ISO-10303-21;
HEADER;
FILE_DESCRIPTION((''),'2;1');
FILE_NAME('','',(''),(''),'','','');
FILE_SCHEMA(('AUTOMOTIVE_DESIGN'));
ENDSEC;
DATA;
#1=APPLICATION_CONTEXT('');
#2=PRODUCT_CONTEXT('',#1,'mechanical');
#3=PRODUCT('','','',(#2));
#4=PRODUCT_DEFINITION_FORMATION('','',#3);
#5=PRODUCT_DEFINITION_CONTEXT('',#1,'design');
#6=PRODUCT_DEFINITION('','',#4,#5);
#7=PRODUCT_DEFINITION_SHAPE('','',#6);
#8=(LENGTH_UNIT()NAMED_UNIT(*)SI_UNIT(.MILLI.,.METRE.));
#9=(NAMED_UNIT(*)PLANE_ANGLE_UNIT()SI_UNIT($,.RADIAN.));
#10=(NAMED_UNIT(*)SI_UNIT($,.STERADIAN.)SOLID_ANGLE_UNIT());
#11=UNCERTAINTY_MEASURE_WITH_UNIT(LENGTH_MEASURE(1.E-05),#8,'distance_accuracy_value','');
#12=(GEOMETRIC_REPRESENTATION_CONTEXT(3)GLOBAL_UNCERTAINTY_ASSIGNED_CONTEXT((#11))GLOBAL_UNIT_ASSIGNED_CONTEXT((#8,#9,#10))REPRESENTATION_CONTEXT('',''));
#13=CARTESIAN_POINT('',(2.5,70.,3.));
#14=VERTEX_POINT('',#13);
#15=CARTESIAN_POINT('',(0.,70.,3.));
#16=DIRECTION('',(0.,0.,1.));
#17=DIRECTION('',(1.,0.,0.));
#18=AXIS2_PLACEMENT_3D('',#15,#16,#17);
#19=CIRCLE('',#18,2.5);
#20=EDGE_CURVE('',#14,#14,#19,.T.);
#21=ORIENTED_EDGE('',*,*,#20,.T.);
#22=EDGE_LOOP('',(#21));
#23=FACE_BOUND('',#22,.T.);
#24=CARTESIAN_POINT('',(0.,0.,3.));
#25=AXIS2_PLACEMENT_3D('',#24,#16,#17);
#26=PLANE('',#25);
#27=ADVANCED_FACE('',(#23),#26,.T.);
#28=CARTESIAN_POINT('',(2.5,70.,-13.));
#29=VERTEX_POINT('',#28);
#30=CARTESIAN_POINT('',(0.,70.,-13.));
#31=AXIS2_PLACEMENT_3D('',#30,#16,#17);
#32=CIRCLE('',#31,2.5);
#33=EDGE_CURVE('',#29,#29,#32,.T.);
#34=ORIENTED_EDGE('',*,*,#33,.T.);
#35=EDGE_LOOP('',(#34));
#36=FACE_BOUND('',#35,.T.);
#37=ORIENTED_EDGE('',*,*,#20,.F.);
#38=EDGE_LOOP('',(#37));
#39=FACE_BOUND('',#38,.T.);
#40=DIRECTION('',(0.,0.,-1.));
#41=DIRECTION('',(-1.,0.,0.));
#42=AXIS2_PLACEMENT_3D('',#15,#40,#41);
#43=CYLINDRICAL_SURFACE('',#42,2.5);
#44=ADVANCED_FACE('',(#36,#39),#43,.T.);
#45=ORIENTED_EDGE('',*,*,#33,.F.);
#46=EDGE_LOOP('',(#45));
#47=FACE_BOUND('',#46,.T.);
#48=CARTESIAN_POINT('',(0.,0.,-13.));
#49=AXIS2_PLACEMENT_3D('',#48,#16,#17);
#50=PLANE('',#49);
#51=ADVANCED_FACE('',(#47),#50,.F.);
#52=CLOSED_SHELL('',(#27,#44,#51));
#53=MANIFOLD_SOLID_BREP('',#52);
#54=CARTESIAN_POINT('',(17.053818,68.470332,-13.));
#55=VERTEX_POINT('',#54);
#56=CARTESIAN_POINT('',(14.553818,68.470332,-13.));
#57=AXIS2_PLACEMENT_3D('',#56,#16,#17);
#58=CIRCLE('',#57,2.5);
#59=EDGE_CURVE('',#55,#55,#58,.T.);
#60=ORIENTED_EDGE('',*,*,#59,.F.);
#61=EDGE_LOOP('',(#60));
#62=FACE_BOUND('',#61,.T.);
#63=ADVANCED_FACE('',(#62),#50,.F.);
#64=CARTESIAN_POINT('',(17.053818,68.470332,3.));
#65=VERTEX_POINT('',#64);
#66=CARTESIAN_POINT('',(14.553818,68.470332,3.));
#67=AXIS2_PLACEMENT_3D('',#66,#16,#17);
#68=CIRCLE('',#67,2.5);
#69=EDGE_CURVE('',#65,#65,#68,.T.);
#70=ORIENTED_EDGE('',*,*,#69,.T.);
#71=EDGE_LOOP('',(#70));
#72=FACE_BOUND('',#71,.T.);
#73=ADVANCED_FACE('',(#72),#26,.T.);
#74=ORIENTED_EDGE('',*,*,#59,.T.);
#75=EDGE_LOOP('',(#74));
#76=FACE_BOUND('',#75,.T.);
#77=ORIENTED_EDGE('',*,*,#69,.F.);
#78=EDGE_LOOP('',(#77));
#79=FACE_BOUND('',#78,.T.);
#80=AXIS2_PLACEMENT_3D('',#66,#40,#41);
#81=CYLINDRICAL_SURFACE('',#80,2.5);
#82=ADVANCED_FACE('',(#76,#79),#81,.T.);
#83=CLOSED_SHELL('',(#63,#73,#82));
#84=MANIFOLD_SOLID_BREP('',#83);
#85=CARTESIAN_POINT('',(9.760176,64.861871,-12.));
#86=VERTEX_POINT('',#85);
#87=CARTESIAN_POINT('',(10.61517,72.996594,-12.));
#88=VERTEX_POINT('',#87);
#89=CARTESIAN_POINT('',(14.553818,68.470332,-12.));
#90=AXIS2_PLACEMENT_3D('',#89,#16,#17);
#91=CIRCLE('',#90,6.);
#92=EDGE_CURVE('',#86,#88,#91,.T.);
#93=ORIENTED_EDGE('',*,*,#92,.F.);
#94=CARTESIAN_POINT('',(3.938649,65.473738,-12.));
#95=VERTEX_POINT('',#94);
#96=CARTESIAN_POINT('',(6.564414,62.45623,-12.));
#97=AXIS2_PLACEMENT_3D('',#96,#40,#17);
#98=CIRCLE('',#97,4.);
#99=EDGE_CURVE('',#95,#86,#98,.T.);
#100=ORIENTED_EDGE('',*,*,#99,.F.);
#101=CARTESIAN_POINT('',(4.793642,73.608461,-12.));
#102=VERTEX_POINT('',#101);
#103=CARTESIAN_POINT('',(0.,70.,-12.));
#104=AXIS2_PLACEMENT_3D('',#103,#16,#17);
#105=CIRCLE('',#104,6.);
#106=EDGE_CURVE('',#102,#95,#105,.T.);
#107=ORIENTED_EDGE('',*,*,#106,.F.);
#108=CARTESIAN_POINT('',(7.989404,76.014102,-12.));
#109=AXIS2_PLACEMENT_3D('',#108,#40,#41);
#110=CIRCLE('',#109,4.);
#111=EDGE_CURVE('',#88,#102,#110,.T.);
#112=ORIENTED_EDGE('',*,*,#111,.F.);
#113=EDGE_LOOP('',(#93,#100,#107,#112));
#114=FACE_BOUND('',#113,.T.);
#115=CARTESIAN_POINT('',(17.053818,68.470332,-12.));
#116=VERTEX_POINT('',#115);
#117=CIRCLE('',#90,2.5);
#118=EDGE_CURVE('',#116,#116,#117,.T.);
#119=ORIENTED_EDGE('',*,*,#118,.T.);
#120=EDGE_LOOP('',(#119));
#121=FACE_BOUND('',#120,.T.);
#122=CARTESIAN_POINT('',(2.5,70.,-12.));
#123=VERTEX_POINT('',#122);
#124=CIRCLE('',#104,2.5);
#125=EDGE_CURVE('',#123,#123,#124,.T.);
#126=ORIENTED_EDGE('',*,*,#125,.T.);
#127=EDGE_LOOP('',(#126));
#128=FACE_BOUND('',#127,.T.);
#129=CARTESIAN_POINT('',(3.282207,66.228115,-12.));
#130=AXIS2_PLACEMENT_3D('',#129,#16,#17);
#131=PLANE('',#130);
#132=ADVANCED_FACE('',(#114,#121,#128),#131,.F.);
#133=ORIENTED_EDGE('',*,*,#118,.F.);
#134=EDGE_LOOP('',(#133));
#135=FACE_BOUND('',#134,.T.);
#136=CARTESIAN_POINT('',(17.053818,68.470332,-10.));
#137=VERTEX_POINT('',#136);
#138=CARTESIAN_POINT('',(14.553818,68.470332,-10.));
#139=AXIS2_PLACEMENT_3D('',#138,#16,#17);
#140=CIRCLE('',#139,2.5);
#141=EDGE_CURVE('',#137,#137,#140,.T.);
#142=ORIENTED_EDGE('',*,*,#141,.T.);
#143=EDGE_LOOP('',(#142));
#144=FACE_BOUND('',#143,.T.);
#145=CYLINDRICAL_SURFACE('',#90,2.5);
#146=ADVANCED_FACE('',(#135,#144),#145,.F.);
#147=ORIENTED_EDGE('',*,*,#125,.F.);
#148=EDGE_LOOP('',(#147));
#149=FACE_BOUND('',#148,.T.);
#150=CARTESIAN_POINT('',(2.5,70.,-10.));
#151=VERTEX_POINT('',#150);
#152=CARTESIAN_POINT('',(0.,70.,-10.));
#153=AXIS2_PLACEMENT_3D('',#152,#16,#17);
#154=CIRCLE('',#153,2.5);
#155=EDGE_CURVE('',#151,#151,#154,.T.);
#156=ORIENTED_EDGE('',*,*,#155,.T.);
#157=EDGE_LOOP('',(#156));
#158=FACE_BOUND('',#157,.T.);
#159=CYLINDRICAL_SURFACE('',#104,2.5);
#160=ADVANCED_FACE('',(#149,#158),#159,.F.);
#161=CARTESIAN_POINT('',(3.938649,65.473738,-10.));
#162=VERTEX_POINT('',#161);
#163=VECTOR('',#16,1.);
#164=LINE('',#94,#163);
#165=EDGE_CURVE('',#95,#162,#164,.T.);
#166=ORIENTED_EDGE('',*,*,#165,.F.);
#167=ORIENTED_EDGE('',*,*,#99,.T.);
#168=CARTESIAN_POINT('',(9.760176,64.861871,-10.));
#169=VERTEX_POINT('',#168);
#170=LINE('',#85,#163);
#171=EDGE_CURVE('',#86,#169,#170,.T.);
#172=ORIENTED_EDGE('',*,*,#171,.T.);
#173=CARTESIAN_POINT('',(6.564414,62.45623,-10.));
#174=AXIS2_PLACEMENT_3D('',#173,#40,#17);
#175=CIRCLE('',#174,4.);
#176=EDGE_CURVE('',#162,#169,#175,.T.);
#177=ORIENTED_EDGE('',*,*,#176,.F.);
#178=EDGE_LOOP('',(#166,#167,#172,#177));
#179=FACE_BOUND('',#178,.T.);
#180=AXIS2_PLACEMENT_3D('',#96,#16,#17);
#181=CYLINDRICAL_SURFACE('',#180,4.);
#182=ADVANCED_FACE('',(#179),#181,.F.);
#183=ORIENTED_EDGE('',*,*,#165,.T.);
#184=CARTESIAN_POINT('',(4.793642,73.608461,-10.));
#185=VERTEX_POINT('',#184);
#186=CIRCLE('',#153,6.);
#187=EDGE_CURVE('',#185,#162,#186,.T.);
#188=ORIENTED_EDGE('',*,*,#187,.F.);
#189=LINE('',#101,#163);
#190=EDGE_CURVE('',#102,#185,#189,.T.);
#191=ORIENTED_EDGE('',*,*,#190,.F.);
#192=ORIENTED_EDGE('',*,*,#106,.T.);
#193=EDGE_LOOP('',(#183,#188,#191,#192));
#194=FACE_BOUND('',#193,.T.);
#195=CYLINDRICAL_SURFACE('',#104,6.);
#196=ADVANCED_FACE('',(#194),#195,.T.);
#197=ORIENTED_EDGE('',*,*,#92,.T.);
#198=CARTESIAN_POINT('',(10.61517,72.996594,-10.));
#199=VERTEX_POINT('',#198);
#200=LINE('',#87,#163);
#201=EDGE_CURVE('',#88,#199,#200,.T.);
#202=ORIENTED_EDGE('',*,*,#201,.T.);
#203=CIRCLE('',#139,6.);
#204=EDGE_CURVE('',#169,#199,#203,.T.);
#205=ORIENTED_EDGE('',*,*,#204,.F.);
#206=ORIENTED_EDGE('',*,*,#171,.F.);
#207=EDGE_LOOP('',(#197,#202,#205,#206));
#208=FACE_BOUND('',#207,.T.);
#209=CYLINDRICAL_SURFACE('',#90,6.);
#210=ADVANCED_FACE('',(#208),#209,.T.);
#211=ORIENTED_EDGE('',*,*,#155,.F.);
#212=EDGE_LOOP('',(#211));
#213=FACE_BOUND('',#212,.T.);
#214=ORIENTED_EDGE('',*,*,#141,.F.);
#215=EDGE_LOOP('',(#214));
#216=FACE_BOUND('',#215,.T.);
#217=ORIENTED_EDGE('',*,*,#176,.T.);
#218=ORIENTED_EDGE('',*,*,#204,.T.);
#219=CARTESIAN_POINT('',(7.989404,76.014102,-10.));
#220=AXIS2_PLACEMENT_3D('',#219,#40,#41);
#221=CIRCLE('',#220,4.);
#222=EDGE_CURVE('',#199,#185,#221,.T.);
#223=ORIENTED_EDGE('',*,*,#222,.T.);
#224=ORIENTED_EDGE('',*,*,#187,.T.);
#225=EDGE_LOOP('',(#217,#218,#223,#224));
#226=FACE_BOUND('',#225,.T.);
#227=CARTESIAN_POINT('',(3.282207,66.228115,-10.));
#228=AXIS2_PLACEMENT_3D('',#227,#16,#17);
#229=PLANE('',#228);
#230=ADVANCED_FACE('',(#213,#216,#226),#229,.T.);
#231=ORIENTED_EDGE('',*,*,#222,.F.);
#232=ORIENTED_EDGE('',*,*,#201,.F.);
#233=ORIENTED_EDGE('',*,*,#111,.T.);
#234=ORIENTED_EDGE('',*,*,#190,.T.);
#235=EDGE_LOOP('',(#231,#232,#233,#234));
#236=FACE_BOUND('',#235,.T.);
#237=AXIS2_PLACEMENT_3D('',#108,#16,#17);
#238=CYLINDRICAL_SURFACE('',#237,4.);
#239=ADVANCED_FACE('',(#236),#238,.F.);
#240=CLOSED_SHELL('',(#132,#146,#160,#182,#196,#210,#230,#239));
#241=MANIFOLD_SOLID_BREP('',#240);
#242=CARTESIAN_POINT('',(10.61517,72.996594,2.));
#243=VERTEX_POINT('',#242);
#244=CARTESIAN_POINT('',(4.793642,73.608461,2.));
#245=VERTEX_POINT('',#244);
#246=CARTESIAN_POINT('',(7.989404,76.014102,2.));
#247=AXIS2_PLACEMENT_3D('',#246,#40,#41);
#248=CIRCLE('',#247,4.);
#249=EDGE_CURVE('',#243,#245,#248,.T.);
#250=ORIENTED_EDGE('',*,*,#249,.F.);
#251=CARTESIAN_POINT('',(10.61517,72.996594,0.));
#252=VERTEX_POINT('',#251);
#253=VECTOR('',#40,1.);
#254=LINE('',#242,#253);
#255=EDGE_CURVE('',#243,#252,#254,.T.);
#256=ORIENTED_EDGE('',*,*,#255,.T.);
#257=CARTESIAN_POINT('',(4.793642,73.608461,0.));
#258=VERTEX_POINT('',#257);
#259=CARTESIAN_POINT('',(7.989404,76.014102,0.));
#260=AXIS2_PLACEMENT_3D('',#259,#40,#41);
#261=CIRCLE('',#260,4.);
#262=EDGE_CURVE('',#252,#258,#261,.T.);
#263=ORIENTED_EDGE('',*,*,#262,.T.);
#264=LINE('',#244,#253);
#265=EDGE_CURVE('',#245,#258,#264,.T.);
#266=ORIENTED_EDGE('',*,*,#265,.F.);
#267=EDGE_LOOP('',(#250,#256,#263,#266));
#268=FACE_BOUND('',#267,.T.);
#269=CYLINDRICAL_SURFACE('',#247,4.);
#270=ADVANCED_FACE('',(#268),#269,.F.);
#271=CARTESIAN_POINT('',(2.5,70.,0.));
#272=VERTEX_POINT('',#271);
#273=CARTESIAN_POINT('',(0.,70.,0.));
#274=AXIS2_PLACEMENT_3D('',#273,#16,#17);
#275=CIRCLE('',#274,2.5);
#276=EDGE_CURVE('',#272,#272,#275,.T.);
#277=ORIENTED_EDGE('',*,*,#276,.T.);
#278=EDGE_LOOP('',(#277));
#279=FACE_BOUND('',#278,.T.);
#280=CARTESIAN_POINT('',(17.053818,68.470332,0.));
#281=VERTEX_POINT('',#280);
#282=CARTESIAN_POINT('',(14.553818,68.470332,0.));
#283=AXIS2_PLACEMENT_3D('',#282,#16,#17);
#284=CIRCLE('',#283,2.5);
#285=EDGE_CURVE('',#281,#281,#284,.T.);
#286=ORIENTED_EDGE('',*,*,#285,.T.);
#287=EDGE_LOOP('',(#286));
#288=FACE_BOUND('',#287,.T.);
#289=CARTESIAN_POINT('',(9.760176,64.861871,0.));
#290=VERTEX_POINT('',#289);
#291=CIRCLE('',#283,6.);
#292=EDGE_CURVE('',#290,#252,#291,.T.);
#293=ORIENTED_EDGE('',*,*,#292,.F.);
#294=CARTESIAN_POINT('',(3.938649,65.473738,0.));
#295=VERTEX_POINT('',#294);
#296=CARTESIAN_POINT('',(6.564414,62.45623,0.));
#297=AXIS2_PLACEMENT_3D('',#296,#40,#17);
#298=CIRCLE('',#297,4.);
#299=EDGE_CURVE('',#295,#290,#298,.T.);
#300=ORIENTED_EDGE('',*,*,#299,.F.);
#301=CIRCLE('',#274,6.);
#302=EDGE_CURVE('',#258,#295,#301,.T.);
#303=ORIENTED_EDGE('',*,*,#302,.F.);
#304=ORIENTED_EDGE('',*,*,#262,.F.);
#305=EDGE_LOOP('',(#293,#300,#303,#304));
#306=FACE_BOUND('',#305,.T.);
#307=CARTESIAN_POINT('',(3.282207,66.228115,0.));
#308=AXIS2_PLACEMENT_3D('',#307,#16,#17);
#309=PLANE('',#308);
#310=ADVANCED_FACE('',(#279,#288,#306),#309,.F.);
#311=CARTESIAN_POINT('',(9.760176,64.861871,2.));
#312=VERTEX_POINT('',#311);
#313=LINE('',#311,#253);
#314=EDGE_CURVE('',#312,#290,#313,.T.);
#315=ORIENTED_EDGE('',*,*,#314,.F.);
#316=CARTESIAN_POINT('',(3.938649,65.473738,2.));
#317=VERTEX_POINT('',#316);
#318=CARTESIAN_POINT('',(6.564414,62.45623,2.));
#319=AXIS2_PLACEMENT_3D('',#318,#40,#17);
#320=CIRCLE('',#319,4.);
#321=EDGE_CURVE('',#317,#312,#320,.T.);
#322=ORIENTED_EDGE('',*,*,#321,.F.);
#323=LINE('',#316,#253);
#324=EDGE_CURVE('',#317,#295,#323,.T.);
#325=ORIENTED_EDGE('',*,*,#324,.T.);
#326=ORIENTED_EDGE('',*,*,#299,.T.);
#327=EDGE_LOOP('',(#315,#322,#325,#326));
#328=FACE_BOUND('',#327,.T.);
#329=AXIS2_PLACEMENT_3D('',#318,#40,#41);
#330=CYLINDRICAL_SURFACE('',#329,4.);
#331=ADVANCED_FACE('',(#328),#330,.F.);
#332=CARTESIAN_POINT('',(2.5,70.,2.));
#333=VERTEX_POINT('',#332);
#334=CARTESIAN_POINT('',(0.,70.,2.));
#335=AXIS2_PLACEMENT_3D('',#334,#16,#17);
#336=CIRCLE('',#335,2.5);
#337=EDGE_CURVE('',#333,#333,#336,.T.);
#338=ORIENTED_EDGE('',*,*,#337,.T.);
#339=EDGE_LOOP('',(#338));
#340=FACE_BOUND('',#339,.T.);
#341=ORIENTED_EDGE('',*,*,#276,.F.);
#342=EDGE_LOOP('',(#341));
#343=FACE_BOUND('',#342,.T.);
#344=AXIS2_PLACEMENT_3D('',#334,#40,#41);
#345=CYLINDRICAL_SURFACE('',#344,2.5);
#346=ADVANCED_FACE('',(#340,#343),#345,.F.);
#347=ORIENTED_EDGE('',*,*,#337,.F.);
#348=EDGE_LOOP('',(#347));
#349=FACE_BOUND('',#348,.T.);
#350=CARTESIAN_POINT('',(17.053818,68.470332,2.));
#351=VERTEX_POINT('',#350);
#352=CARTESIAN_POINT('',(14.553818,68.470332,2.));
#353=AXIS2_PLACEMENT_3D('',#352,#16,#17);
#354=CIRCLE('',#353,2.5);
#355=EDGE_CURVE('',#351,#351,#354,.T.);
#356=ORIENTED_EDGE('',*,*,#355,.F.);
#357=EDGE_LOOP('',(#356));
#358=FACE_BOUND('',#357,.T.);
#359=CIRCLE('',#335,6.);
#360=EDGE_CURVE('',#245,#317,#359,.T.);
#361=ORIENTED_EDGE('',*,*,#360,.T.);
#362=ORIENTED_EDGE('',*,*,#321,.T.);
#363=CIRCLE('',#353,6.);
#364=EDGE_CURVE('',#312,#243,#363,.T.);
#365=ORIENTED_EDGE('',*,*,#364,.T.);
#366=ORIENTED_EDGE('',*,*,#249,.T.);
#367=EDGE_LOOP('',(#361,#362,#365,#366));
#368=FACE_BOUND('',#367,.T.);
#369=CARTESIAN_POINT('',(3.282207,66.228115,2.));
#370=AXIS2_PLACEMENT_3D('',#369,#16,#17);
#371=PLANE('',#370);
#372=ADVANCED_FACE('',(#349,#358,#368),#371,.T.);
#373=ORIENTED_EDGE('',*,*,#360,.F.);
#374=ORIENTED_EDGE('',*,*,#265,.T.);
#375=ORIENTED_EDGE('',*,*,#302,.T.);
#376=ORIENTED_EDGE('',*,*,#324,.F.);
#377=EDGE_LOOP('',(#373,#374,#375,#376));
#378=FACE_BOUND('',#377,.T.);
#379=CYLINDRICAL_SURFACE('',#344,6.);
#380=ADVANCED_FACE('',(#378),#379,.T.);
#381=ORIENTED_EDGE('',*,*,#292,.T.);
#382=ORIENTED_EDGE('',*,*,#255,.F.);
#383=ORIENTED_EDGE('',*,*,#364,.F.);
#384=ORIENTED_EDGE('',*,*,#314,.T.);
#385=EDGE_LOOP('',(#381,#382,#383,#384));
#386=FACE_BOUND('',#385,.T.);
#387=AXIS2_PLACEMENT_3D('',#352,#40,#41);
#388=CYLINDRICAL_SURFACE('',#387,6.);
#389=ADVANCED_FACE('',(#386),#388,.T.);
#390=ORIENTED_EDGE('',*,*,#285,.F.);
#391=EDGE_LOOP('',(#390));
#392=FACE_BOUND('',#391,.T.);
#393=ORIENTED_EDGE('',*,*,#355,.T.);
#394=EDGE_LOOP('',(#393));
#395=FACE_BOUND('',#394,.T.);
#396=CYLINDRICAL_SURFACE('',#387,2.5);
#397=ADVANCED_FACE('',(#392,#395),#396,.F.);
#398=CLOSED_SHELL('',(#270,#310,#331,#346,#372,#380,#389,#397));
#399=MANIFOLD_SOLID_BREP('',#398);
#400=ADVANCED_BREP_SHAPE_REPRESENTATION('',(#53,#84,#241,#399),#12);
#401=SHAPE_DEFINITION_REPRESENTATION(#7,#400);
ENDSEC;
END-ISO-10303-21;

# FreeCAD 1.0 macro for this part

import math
import FreeCAD as App
import Part
import Sketcher
Q = App.Units.Quantity

doc = App.newDocument("Part")
body = doc.addObject("PartDesign::Body", "Body")

sketch1 = body.newObject("Sketcher::SketchObject", "Sketch")
sketch1.AttachmentSupport = (doc.getObject("XY_Plane"), [""])
sketch1.MapMode = "FlatFace"
sketch1.addGeometry([
    Part.ArcOfCircle(Part.Circle(App.Vector(14.6, 68.5, 0), App.Vector(0, 0, 1), 6), math.radians(-143), math.radians(131)),
    Part.ArcOfCircle(Part.Circle(App.Vector(8, 76, 0), App.Vector(0, 0, 1), 4), math.radians(-143), math.radians(-49)),
    Part.ArcOfCircle(Part.Circle(App.Vector(0, 70, 0), App.Vector(0, 0, 1), 6), math.radians(37), math.radians(311)),
    Part.ArcOfCircle(Part.Circle(App.Vector(6.6, 62.5, 0), App.Vector(0, 0, 1), 4), math.radians(37), math.radians(131)),
    Part.Circle(App.Vector(14.6, 68.5, 0), App.Vector(0, 0, 1), 2.5),
    Part.Circle(App.Vector(0, 70, 0), App.Vector(0, 0, 1), 2.5),
], False)
sketch1.addConstraint([
    Sketcher.Constraint("Tangent", 0, 2, 1, 2),
    Sketcher.Constraint("Tangent", 1, 1, 2, 1),
    Sketcher.Constraint("Tangent", 2, 2, 3, 2),
    Sketcher.Constraint("Tangent", 3, 1, 0, 1),
    Sketcher.Constraint("Coincident", 4, 3, 0, 3),
    Sketcher.Constraint("Coincident", 5, 3, 2, 3),
    Sketcher.Constraint("Equal", 0, 2),
    Sketcher.Constraint("Equal", 1, 3),
    Sketcher.Constraint("Equal", 4, 5),
    Sketcher.Constraint("PointOnObject", 2, 3, -2),
    Sketcher.Constraint("Diameter", 4, Q("5 mm")),
    Sketcher.Constraint("Radius", 0, Q("6 mm")),
    Sketcher.Constraint("Radius", 1, Q("4 mm")),
    Sketcher.Constraint("DistanceY", -1, 1, 2, 3, Q("70 mm")),
    Sketcher.Constraint("DistanceY", -1, 1, 1, 3, Q("76.014102 mm")),
    Sketcher.Constraint("DistanceX", -1, 1, 0, 3, Q("14.553818 mm")),
])
pad1 = body.newObject("PartDesign::Pad", "Pad")
pad1.Profile = sketch1
pad1.Length = 2
body2 = doc.addObject("PartDesign::Body", "Body001")

sketch2 = body2.newObject("Sketcher::SketchObject", "Sketch001")
sketch2.AttachmentSupport = (doc.getObject("XY_Plane001"), [""])
sketch2.MapMode = "FlatFace"
sketch2.AttachmentOffset = App.Placement(App.Vector(0, 0, -10), App.Rotation())
sketch2.addGeometry([
    Part.ArcOfCircle(Part.Circle(App.Vector(14.6, 68.5, 0), App.Vector(0, 0, 1), 6), math.radians(-143), math.radians(131)),
    Part.ArcOfCircle(Part.Circle(App.Vector(8, 76, 0), App.Vector(0, 0, 1), 4), math.radians(-143), math.radians(-49)),
    Part.ArcOfCircle(Part.Circle(App.Vector(0, 70, 0), App.Vector(0, 0, 1), 6), math.radians(37), math.radians(311)),
    Part.ArcOfCircle(Part.Circle(App.Vector(6.6, 62.5, 0), App.Vector(0, 0, 1), 4), math.radians(37), math.radians(131)),
    Part.Circle(App.Vector(14.6, 68.5, 0), App.Vector(0, 0, 1), 2.5),
    Part.Circle(App.Vector(0, 70, 0), App.Vector(0, 0, 1), 2.5),
], False)
sketch2.addConstraint([
    Sketcher.Constraint("Tangent", 0, 2, 1, 2),
    Sketcher.Constraint("Tangent", 1, 1, 2, 1),
    Sketcher.Constraint("Tangent", 2, 2, 3, 2),
    Sketcher.Constraint("Tangent", 3, 1, 0, 1),
    Sketcher.Constraint("Coincident", 4, 3, 0, 3),
    Sketcher.Constraint("Coincident", 5, 3, 2, 3),
    Sketcher.Constraint("Equal", 0, 2),
    Sketcher.Constraint("Equal", 1, 3),
    Sketcher.Constraint("Equal", 4, 5),
    Sketcher.Constraint("PointOnObject", 2, 3, -2),
    Sketcher.Constraint("Diameter", 4, Q("5 mm")),
    Sketcher.Constraint("Radius", 0, Q("6 mm")),
    Sketcher.Constraint("Radius", 1, Q("4 mm")),
    Sketcher.Constraint("DistanceY", -1, 1, 2, 3, Q("70 mm")),
    Sketcher.Constraint("DistanceY", -1, 1, 1, 3, Q("76.014102 mm")),
    Sketcher.Constraint("DistanceX", -1, 1, 0, 3, Q("14.553818 mm")),
])
pad2 = body2.newObject("PartDesign::Pad", "Pad001")
pad2.Profile = sketch2
pad2.Length = 2
pad2.Reversed = True
body3 = doc.addObject("PartDesign::Body", "Body002")

sketch3 = body3.newObject("Sketcher::SketchObject", "Sketch002")
sketch3.AttachmentSupport = (doc.getObject("XY_Plane002"), [""])
sketch3.MapMode = "FlatFace"
sketch3.AttachmentOffset = App.Placement(App.Vector(0, 0, -5), App.Rotation())
sketch3.addGeometry(Part.Circle(App.Vector(0, 70, 0), App.Vector(0, 0, 1), 2.5), False)
sketch3.addConstraint([
    Sketcher.Constraint("PointOnObject", 0, 3, -2),
    Sketcher.Constraint("Diameter", 0, Q("5 mm")),
    Sketcher.Constraint("DistanceY", -1, 1, 0, 3, Q("70 mm")),
])
pad3 = body3.newObject("PartDesign::Pad", "Pad002")
pad3.Profile = sketch3
pad3.Length = 16
pad3.Midplane = True
body4 = doc.addObject("PartDesign::Body", "Body003")

sketch4 = body4.newObject("Sketcher::SketchObject", "Sketch003")
sketch4.AttachmentSupport = (doc.getObject("XY_Plane003"), [""])
sketch4.MapMode = "FlatFace"
sketch4.AttachmentOffset = App.Placement(App.Vector(0, 0, -5), App.Rotation())
sketch4.addGeometry(Part.Circle(App.Vector(14.6, 68.5, 0), App.Vector(0, 0, 1), 2.5), False)
sketch4.addConstraint([
    Sketcher.Constraint("Diameter", 0, Q("5 mm")),
    Sketcher.Constraint("DistanceX", -1, 1, 0, 3, Q("14.553818 mm")),
    Sketcher.Constraint("DistanceY", -1, 1, 0, 3, Q("68.470332 mm")),
])
pad4 = body4.newObject("PartDesign::Pad", "Pad003")
pad4.Profile = sketch4
pad4.Length = 16
pad4.Midplane = True

doc.recompute()
